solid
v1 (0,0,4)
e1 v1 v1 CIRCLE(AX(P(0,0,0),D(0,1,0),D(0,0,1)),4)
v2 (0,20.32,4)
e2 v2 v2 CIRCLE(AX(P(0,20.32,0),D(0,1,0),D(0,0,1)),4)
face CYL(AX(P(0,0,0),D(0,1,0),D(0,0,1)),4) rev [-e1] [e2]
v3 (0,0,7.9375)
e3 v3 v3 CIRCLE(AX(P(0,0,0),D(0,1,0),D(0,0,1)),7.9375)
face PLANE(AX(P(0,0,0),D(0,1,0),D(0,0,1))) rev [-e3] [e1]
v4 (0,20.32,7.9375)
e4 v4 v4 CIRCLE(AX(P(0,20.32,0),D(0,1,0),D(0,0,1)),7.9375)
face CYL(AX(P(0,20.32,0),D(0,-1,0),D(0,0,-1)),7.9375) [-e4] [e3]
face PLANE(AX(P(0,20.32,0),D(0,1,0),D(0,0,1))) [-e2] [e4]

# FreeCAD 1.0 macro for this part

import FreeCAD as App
import Part
import Sketcher
Q = App.Units.Quantity

doc = App.newDocument("Part")
body = doc.addObject("PartDesign::Body", "Body")

sketch1 = body.newObject("Sketcher::SketchObject", "Sketch")
sketch1.AttachmentSupport = (doc.getObject("XZ_Plane"), [""])
sketch1.MapMode = "FlatFace"
sketch1.addGeometry(Part.Circle(App.Vector(0, 0, 0), App.Vector(0, 0, 1), 8), False)
sketch1.addConstraint(Sketcher.Constraint("Coincident", 0, 3, -1, 1))
sketch1.addConstraint(Sketcher.Constraint("Diameter", 0, Q("0.625 in")))
pad1 = body.newObject("PartDesign::Pad", "Pad")
pad1.Profile = sketch1
pad1.Length = Q("0.8 in")
pad1.Reversed = True

sketch2 = body.newObject("Sketcher::SketchObject", "Sketch001")
sketch2.AttachmentSupport = (doc.getObject("XZ_Plane"), [""])
sketch2.MapMode = "FlatFace"
sketch2.AttachmentOffset = App.Placement(App.Vector(0, 0, -0.8 * 25.4), App.Rotation())
sketch2.addGeometry(Part.Circle(App.Vector(0, 0, 0), App.Vector(0, 0, 1), 4), False)
sketch2.addConstraint(Sketcher.Constraint("Coincident", 0, 3, -1, 1))
sketch2.addConstraint(Sketcher.Constraint("Diameter", 0, Q("8 mm")))
pocket1 = body.newObject("PartDesign::Pocket", "Pocket")
pocket1.Profile = sketch2
pocket1.Type = "ThroughAll"
pocket1.Reversed = True

doc.recompute()
